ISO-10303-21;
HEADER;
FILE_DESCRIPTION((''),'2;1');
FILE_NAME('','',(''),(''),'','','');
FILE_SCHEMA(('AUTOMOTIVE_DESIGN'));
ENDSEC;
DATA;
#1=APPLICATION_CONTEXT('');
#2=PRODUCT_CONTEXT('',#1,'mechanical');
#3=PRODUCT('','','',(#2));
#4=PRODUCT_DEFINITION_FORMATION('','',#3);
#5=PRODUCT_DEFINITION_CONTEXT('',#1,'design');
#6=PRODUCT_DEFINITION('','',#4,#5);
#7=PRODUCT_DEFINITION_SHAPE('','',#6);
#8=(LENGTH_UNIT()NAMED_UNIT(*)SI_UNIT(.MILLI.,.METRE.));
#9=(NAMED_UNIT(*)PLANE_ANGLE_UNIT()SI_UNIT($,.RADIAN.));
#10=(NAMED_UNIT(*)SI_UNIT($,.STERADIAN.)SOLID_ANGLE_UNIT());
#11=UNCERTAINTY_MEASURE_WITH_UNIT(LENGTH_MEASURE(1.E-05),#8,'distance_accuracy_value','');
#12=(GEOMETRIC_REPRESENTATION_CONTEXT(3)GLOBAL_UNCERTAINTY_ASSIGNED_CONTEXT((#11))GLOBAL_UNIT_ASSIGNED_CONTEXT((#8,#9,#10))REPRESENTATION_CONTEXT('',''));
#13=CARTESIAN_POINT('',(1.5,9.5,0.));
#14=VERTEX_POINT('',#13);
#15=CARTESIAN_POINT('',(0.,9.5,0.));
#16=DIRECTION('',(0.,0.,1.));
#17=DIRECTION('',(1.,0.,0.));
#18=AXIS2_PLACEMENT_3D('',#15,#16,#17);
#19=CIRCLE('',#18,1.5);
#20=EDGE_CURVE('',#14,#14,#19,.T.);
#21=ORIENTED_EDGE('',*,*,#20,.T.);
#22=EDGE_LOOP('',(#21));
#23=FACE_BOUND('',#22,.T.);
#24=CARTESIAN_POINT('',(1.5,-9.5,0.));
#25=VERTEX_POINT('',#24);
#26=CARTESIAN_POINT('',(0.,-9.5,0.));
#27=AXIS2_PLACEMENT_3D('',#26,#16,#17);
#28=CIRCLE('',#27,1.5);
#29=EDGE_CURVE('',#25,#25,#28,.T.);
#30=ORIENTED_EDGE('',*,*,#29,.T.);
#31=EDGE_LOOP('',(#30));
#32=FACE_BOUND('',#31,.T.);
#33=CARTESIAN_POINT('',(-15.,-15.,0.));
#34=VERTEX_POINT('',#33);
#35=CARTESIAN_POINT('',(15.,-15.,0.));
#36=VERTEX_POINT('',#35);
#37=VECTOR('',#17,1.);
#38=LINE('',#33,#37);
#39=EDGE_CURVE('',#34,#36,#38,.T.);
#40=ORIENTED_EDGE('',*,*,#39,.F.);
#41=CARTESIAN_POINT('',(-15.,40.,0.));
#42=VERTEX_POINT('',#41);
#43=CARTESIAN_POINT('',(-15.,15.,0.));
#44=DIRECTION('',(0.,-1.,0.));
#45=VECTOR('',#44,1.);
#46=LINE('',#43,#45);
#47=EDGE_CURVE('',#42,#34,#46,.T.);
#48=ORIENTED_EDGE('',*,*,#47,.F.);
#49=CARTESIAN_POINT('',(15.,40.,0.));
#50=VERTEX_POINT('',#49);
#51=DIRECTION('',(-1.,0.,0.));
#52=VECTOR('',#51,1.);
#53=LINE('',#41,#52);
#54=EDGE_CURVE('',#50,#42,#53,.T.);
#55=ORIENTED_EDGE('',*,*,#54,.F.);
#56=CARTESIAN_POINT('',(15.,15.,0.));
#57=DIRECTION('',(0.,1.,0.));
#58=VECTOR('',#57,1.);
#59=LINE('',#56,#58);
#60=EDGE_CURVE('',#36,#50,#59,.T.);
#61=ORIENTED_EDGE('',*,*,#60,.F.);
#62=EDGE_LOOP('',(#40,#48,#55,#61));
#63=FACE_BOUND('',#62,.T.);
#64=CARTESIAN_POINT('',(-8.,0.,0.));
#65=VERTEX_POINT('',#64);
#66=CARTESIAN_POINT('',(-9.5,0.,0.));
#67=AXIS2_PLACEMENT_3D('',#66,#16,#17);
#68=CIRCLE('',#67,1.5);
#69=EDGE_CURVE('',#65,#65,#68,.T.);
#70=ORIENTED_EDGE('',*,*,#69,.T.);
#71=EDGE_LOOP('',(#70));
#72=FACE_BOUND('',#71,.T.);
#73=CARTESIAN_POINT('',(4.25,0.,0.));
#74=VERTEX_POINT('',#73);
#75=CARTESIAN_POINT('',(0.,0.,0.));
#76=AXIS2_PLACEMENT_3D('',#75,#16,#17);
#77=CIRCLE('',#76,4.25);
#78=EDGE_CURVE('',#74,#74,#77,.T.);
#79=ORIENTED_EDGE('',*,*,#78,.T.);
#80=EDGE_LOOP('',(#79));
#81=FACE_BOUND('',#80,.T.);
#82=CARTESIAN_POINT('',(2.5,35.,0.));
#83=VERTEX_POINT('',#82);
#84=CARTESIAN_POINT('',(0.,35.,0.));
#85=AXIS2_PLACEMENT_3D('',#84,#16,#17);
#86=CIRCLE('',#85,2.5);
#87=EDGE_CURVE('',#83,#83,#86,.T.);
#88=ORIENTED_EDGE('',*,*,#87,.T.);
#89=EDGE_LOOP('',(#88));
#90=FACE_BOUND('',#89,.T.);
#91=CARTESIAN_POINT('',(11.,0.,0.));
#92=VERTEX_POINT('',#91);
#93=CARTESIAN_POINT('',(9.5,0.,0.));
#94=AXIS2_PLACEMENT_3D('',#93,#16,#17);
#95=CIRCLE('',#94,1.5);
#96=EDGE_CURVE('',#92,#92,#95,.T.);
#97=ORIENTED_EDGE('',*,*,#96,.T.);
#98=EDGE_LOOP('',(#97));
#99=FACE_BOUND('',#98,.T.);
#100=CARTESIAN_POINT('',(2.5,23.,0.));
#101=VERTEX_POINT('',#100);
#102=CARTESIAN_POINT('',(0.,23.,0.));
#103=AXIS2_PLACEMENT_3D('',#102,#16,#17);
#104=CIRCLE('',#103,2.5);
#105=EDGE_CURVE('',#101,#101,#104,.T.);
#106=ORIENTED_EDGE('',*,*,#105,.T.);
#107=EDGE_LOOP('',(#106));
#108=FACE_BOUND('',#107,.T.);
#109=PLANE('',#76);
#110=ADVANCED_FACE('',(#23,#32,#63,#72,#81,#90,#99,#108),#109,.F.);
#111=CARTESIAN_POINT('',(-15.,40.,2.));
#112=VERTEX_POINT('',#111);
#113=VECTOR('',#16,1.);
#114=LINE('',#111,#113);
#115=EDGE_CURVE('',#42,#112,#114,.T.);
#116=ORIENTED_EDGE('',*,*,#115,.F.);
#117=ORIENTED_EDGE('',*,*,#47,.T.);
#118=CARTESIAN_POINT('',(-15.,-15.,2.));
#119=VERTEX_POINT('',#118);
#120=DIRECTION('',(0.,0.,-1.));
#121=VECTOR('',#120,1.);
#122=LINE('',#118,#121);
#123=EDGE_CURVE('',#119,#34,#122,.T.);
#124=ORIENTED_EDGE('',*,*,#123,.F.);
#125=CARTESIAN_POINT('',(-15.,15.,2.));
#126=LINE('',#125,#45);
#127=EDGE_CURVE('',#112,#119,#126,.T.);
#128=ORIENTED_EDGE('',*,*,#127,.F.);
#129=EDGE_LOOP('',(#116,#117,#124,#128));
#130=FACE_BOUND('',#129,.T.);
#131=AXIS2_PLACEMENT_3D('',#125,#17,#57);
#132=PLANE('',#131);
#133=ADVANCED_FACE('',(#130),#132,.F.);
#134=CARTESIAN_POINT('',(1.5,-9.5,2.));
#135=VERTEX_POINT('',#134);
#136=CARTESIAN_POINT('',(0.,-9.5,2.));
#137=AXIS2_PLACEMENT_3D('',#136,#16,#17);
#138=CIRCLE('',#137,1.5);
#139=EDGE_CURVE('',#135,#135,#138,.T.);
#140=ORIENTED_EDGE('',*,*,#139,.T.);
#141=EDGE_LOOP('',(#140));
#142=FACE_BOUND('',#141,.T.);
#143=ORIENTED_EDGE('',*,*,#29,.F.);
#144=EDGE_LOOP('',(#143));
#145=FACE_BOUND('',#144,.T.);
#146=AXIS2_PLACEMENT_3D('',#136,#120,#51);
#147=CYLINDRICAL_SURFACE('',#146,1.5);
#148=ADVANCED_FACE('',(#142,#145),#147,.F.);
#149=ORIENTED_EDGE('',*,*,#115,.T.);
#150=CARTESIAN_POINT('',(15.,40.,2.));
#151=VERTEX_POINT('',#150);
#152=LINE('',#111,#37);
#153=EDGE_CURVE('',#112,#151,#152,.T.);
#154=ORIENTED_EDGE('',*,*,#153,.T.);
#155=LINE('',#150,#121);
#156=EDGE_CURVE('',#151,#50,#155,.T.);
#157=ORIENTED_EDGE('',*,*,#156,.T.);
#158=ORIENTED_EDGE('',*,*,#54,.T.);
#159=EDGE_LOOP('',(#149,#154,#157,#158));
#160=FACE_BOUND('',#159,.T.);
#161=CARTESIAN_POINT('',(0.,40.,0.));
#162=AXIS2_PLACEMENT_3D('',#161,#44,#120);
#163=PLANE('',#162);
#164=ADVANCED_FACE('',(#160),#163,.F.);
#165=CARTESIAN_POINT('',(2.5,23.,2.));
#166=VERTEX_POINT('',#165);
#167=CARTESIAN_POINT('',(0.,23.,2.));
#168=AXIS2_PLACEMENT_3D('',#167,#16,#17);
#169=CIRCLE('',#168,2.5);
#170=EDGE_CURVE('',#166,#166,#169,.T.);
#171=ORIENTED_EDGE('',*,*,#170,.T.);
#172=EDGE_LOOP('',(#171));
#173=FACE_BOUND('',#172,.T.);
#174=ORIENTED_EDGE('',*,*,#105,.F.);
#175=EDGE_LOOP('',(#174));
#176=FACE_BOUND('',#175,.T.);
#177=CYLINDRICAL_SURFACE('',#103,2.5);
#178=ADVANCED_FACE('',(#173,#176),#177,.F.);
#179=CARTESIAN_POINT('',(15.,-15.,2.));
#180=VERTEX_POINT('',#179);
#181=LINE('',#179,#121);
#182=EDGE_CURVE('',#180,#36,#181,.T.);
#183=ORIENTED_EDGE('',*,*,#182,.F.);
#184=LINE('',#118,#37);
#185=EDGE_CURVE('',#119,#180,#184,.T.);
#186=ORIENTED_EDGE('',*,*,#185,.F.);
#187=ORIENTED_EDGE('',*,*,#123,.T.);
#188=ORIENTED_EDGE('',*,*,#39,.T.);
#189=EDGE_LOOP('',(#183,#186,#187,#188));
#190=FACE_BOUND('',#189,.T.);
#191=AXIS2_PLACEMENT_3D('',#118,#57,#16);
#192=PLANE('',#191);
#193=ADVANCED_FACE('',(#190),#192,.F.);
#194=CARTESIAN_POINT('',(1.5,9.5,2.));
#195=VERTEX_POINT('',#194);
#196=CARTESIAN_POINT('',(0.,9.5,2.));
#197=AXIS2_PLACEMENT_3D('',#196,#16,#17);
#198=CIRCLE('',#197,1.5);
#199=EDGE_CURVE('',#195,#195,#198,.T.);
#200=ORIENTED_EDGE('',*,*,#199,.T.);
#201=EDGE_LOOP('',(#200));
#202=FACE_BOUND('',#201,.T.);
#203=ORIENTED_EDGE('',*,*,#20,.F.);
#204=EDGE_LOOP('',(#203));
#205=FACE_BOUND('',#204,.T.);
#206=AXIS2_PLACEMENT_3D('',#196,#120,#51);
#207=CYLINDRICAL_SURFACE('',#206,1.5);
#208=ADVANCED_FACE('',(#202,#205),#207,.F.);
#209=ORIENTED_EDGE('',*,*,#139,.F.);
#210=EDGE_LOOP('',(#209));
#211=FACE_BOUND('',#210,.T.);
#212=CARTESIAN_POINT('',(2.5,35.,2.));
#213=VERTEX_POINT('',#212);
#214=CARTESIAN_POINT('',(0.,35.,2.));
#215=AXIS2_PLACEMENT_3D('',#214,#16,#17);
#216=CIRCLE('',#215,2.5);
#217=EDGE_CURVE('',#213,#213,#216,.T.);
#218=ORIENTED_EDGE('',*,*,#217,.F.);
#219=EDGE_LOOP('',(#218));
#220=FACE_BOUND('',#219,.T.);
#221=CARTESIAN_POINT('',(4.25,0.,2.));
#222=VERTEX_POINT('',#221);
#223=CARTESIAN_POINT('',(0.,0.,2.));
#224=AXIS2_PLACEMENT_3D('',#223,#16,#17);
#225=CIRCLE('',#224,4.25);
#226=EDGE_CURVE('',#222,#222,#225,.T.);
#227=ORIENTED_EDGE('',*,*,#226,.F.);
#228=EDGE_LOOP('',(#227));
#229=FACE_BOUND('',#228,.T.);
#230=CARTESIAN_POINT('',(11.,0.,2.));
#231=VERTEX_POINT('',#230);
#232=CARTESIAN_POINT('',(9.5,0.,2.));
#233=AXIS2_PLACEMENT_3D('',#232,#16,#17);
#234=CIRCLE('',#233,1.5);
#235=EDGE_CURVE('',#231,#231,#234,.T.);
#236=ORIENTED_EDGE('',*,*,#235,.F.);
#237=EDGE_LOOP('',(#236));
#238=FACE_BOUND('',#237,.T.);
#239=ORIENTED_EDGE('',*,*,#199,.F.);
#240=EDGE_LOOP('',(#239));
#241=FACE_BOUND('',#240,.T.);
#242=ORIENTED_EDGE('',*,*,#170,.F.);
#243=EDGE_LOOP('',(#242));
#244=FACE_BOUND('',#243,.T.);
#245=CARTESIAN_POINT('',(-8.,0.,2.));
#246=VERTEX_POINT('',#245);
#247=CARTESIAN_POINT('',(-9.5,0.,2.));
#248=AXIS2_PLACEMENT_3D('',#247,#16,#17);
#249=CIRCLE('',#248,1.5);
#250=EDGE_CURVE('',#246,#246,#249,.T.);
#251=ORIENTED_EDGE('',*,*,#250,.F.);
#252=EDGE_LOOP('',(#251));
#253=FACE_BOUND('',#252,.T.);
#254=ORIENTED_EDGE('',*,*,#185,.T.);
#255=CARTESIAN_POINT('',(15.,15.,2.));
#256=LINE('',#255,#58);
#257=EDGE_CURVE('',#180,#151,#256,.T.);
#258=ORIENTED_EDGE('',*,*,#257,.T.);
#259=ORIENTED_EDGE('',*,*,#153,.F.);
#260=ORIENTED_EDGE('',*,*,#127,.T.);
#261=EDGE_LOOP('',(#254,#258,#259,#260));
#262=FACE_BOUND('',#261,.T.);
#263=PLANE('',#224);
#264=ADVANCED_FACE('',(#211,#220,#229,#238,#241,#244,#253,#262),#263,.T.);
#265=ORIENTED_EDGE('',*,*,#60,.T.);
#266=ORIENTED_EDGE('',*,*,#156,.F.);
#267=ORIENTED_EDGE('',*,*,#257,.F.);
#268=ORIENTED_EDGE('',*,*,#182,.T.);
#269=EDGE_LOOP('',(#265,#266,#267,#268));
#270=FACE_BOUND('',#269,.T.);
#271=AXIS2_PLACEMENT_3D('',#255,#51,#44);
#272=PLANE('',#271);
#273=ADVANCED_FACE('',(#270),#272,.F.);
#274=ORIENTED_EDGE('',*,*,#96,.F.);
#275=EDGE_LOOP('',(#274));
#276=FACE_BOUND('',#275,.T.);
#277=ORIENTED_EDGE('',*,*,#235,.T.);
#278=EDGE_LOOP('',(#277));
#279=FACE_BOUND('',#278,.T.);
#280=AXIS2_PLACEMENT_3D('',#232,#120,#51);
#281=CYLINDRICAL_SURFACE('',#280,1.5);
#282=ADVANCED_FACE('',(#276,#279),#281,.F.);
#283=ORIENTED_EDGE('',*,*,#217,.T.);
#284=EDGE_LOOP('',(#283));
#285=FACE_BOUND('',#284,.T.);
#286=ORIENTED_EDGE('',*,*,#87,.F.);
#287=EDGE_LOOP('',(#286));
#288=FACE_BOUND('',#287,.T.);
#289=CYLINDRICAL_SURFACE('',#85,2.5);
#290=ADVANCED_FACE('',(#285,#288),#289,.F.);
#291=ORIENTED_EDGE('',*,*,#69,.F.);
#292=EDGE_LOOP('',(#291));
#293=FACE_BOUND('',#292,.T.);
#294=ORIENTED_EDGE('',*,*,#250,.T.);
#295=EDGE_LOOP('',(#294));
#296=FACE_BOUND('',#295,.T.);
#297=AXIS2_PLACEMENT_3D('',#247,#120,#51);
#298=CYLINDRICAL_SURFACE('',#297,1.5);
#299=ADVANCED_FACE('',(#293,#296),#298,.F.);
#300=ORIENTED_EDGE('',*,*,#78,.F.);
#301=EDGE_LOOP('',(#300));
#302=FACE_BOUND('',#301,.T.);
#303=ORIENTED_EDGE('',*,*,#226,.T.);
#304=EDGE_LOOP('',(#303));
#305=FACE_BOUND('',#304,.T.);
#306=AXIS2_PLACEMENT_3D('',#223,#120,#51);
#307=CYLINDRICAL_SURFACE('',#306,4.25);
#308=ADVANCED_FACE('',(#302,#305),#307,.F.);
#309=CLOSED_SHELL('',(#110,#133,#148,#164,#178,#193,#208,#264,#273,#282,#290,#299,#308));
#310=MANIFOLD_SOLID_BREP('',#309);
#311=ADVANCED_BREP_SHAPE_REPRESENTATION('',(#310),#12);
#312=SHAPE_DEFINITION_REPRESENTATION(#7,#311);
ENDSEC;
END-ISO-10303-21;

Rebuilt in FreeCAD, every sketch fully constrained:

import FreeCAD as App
import Part
import Sketcher
from FreeCAD import Vector

doc = App.newDocument("Part")
params = doc.addObject("Spreadsheet::Sheet", "Params")
for row, (alias, value) in enumerate([
    ("sketch1_diameter", "3 mm"),
    ("sketch1_diameter2", "8.5 mm"),
    ("sketch1_width", "30 mm"),
    ("pad1_length", "2 mm"),
    ("sketch2_width", "30 mm"),
    ("sketch2_height", "2 mm"),
    ("pad2_length", "25 mm"),
    ("sketch3_diameter", "5 mm"),
    ("pocket1_length", "2 mm"),
], start=1):
    params.set(f"A{row}", alias)
    params.set(f"B{row}", "=" + value)
    params.setAlias(f"B{row}", alias)

body = doc.addObject("PartDesign::Body", "Body")

# Sketch on XY plane
sketch1 = doc.addObject("Sketcher::SketchObject", "Sketch")
body.addObject(sketch1)
sketch1.AttachmentSupport = (doc.XY_Plane, [""])
sketch1.MapMode = "FlatFace"
sketch1.addGeometry(Part.LineSegment(Vector(-15, 15, 0), Vector(-15, -15, 0)), False)
sketch1.addGeometry(Part.LineSegment(Vector(-15, -15, 0), Vector(15, -15, 0)), False)
sketch1.addGeometry(Part.LineSegment(Vector(15, -15, 0), Vector(15, 15, 0)), False)
sketch1.addGeometry(Part.LineSegment(Vector(15, 15, 0), Vector(-15, 15, 0)), False)
sketch1.addGeometry(Part.Circle(Vector(0, -9.5, 0), Vector(0, 0, 1), 1.5), False)
sketch1.addGeometry(Part.Circle(Vector(-9.5, 0, 0), Vector(0, 0, 1), 1.5), False)
sketch1.addGeometry(Part.Circle(Vector(0, 0, 0), Vector(0, 0, 1), 4.2), False)
sketch1.addGeometry(Part.Circle(Vector(9.5, 0, 0), Vector(0, 0, 1), 1.5), False)
sketch1.addGeometry(Part.Circle(Vector(0, 9.5, 0), Vector(0, 0, 1), 1.5), False)
sketch1.addConstraint(Sketcher.Constraint("Coincident", 0, 2, 1, 1))
sketch1.addConstraint(Sketcher.Constraint("Coincident", 1, 2, 2, 1))
sketch1.addConstraint(Sketcher.Constraint("Coincident", 2, 2, 3, 1))
sketch1.addConstraint(Sketcher.Constraint("Coincident", 3, 2, 0, 1))
sketch1.addConstraint(Sketcher.Constraint("Vertical", 0))
sketch1.addConstraint(Sketcher.Constraint("Horizontal", 1))
sketch1.addConstraint(Sketcher.Constraint("Vertical", 2))
sketch1.addConstraint(Sketcher.Constraint("Horizontal", 3))
sketch1.addConstraint(Sketcher.Constraint("Coincident", 6, 3, -1, 1))
sketch1.addConstraint(Sketcher.Constraint("Equal", 4, 5))
sketch1.addConstraint(Sketcher.Constraint("Equal", 5, 7))
sketch1.addConstraint(Sketcher.Constraint("Equal", 7, 8))
sketch1.addConstraint(Sketcher.Constraint("Symmetric", 5, 3, 7, 3, -1, 1))
sketch1.addConstraint(Sketcher.Constraint("Symmetric", 4, 3, 8, 3, -1, 1))
sketch1.addConstraint(Sketcher.Constraint("Symmetric", 0, 2, 2, 2, -1, 1))
sketch1.addConstraint(Sketcher.Constraint("PointOnObject", 4, 3, -2))
sketch1.addConstraint(Sketcher.Constraint("PointOnObject", 5, 3, -1))
sketch1.addConstraint(Sketcher.Constraint("Equal", 3, 0))
sketch1.addConstraint(Sketcher.Constraint("Diameter", 4, 3.0))
sketch1.addConstraint(Sketcher.Constraint("Diameter", 6, 8.5))
sketch1.addConstraint(Sketcher.Constraint("DistanceX", 1, 1, 1, 2, 30.0))
sketch1.addConstraint(Sketcher.Constraint("DistanceX", 5, 3, 7, 3, 19.0))
sketch1.addConstraint(Sketcher.Constraint("DistanceY", 4, 3, 8, 3, 19.0))
sketch1.setExpression("Constraints[18]", "Params.sketch1_diameter")
sketch1.setExpression("Constraints[19]", "Params.sketch1_diameter2")
sketch1.setExpression("Constraints[20]", "Params.sketch1_width")
pad1 = doc.addObject("PartDesign::Pad", "Pad")
body.addObject(pad1)
pad1.Profile = sketch1
pad1.setExpression("Length", "Params.pad1_length")

# Sketch on XZ plane
sketch2 = doc.addObject("Sketcher::SketchObject", "Sketch001")
body.addObject(sketch2)
sketch2.AttachmentSupport = (doc.XZ_Plane, [""])
sketch2.MapMode = "FlatFace"
sketch2.AttachmentOffset = App.Placement(Vector(0, 0, -15), App.Rotation())
sketch2.addGeometry(Part.LineSegment(Vector(-15, 0, 0), Vector(-15, 2, 0)), False)
sketch2.addGeometry(Part.LineSegment(Vector(-15, 2, 0), Vector(15, 2, 0)), False)
sketch2.addGeometry(Part.LineSegment(Vector(15, 2, 0), Vector(15, 0, 0)), False)
sketch2.addGeometry(Part.LineSegment(Vector(15, 0, 0), Vector(-15, 0, 0)), False)
sketch2.addConstraint(Sketcher.Constraint("Coincident", 0, 2, 1, 1))
sketch2.addConstraint(Sketcher.Constraint("Coincident", 1, 2, 2, 1))
sketch2.addConstraint(Sketcher.Constraint("Coincident", 2, 2, 3, 1))
sketch2.addConstraint(Sketcher.Constraint("Coincident", 3, 2, 0, 1))
sketch2.addConstraint(Sketcher.Constraint("Vertical", 0))
sketch2.addConstraint(Sketcher.Constraint("Horizontal", 1))
sketch2.addConstraint(Sketcher.Constraint("Vertical", 2))
sketch2.addConstraint(Sketcher.Constraint("Horizontal", 3))
sketch2.addConstraint(Sketcher.Constraint("Symmetric", 2, 2, 3, 2, -1, 1))
sketch2.addConstraint(Sketcher.Constraint("DistanceX", 1, 1, 1, 2, 30.0))
sketch2.addConstraint(Sketcher.Constraint("DistanceY", 0, 1, 0, 2, 2.0))
sketch2.setExpression("Constraints[9]", "Params.sketch2_width")
sketch2.setExpression("Constraints[10]", "Params.sketch2_height")
pad2 = doc.addObject("PartDesign::Pad", "Pad001")
body.addObject(pad2)
pad2.Profile = sketch2
pad2.setExpression("Length", "Params.pad2_length")
pad2.Reversed = True

# Sketch on XY plane
sketch3 = doc.addObject("Sketcher::SketchObject", "Sketch002")
body.addObject(sketch3)
sketch3.AttachmentSupport = (doc.XY_Plane, [""])
sketch3.MapMode = "FlatFace"
sketch3.AttachmentOffset = App.Placement(Vector(0, 0, 2), App.Rotation())
sketch3.addGeometry(Part.Circle(Vector(0, 23, 0), Vector(0, 0, 1), 2.5), False)
sketch3.addGeometry(Part.Circle(Vector(0, 35, 0), Vector(0, 0, 1), 2.5), False)
sketch3.addConstraint(Sketcher.Constraint("Equal", 0, 1))
sketch3.addConstraint(Sketcher.Constraint("PointOnObject", 0, 3, -2))
sketch3.addConstraint(Sketcher.Constraint("PointOnObject", 1, 3, -2))
sketch3.addConstraint(Sketcher.Constraint("Diameter", 0, 5.0))
sketch3.addConstraint(Sketcher.Constraint("DistanceY", -1, 1, 0, 3, 23.0))
sketch3.addConstraint(Sketcher.Constraint("DistanceY", -1, 1, 1, 3, 35.0))
sketch3.setExpression("Constraints[3]", "Params.sketch3_diameter")
pocket1 = doc.addObject("PartDesign::Pocket", "Pocket")
body.addObject(pocket1)
pocket1.Profile = sketch3
pocket1.setExpression("Length", "Params.pocket1_length")

doc.recompute()
